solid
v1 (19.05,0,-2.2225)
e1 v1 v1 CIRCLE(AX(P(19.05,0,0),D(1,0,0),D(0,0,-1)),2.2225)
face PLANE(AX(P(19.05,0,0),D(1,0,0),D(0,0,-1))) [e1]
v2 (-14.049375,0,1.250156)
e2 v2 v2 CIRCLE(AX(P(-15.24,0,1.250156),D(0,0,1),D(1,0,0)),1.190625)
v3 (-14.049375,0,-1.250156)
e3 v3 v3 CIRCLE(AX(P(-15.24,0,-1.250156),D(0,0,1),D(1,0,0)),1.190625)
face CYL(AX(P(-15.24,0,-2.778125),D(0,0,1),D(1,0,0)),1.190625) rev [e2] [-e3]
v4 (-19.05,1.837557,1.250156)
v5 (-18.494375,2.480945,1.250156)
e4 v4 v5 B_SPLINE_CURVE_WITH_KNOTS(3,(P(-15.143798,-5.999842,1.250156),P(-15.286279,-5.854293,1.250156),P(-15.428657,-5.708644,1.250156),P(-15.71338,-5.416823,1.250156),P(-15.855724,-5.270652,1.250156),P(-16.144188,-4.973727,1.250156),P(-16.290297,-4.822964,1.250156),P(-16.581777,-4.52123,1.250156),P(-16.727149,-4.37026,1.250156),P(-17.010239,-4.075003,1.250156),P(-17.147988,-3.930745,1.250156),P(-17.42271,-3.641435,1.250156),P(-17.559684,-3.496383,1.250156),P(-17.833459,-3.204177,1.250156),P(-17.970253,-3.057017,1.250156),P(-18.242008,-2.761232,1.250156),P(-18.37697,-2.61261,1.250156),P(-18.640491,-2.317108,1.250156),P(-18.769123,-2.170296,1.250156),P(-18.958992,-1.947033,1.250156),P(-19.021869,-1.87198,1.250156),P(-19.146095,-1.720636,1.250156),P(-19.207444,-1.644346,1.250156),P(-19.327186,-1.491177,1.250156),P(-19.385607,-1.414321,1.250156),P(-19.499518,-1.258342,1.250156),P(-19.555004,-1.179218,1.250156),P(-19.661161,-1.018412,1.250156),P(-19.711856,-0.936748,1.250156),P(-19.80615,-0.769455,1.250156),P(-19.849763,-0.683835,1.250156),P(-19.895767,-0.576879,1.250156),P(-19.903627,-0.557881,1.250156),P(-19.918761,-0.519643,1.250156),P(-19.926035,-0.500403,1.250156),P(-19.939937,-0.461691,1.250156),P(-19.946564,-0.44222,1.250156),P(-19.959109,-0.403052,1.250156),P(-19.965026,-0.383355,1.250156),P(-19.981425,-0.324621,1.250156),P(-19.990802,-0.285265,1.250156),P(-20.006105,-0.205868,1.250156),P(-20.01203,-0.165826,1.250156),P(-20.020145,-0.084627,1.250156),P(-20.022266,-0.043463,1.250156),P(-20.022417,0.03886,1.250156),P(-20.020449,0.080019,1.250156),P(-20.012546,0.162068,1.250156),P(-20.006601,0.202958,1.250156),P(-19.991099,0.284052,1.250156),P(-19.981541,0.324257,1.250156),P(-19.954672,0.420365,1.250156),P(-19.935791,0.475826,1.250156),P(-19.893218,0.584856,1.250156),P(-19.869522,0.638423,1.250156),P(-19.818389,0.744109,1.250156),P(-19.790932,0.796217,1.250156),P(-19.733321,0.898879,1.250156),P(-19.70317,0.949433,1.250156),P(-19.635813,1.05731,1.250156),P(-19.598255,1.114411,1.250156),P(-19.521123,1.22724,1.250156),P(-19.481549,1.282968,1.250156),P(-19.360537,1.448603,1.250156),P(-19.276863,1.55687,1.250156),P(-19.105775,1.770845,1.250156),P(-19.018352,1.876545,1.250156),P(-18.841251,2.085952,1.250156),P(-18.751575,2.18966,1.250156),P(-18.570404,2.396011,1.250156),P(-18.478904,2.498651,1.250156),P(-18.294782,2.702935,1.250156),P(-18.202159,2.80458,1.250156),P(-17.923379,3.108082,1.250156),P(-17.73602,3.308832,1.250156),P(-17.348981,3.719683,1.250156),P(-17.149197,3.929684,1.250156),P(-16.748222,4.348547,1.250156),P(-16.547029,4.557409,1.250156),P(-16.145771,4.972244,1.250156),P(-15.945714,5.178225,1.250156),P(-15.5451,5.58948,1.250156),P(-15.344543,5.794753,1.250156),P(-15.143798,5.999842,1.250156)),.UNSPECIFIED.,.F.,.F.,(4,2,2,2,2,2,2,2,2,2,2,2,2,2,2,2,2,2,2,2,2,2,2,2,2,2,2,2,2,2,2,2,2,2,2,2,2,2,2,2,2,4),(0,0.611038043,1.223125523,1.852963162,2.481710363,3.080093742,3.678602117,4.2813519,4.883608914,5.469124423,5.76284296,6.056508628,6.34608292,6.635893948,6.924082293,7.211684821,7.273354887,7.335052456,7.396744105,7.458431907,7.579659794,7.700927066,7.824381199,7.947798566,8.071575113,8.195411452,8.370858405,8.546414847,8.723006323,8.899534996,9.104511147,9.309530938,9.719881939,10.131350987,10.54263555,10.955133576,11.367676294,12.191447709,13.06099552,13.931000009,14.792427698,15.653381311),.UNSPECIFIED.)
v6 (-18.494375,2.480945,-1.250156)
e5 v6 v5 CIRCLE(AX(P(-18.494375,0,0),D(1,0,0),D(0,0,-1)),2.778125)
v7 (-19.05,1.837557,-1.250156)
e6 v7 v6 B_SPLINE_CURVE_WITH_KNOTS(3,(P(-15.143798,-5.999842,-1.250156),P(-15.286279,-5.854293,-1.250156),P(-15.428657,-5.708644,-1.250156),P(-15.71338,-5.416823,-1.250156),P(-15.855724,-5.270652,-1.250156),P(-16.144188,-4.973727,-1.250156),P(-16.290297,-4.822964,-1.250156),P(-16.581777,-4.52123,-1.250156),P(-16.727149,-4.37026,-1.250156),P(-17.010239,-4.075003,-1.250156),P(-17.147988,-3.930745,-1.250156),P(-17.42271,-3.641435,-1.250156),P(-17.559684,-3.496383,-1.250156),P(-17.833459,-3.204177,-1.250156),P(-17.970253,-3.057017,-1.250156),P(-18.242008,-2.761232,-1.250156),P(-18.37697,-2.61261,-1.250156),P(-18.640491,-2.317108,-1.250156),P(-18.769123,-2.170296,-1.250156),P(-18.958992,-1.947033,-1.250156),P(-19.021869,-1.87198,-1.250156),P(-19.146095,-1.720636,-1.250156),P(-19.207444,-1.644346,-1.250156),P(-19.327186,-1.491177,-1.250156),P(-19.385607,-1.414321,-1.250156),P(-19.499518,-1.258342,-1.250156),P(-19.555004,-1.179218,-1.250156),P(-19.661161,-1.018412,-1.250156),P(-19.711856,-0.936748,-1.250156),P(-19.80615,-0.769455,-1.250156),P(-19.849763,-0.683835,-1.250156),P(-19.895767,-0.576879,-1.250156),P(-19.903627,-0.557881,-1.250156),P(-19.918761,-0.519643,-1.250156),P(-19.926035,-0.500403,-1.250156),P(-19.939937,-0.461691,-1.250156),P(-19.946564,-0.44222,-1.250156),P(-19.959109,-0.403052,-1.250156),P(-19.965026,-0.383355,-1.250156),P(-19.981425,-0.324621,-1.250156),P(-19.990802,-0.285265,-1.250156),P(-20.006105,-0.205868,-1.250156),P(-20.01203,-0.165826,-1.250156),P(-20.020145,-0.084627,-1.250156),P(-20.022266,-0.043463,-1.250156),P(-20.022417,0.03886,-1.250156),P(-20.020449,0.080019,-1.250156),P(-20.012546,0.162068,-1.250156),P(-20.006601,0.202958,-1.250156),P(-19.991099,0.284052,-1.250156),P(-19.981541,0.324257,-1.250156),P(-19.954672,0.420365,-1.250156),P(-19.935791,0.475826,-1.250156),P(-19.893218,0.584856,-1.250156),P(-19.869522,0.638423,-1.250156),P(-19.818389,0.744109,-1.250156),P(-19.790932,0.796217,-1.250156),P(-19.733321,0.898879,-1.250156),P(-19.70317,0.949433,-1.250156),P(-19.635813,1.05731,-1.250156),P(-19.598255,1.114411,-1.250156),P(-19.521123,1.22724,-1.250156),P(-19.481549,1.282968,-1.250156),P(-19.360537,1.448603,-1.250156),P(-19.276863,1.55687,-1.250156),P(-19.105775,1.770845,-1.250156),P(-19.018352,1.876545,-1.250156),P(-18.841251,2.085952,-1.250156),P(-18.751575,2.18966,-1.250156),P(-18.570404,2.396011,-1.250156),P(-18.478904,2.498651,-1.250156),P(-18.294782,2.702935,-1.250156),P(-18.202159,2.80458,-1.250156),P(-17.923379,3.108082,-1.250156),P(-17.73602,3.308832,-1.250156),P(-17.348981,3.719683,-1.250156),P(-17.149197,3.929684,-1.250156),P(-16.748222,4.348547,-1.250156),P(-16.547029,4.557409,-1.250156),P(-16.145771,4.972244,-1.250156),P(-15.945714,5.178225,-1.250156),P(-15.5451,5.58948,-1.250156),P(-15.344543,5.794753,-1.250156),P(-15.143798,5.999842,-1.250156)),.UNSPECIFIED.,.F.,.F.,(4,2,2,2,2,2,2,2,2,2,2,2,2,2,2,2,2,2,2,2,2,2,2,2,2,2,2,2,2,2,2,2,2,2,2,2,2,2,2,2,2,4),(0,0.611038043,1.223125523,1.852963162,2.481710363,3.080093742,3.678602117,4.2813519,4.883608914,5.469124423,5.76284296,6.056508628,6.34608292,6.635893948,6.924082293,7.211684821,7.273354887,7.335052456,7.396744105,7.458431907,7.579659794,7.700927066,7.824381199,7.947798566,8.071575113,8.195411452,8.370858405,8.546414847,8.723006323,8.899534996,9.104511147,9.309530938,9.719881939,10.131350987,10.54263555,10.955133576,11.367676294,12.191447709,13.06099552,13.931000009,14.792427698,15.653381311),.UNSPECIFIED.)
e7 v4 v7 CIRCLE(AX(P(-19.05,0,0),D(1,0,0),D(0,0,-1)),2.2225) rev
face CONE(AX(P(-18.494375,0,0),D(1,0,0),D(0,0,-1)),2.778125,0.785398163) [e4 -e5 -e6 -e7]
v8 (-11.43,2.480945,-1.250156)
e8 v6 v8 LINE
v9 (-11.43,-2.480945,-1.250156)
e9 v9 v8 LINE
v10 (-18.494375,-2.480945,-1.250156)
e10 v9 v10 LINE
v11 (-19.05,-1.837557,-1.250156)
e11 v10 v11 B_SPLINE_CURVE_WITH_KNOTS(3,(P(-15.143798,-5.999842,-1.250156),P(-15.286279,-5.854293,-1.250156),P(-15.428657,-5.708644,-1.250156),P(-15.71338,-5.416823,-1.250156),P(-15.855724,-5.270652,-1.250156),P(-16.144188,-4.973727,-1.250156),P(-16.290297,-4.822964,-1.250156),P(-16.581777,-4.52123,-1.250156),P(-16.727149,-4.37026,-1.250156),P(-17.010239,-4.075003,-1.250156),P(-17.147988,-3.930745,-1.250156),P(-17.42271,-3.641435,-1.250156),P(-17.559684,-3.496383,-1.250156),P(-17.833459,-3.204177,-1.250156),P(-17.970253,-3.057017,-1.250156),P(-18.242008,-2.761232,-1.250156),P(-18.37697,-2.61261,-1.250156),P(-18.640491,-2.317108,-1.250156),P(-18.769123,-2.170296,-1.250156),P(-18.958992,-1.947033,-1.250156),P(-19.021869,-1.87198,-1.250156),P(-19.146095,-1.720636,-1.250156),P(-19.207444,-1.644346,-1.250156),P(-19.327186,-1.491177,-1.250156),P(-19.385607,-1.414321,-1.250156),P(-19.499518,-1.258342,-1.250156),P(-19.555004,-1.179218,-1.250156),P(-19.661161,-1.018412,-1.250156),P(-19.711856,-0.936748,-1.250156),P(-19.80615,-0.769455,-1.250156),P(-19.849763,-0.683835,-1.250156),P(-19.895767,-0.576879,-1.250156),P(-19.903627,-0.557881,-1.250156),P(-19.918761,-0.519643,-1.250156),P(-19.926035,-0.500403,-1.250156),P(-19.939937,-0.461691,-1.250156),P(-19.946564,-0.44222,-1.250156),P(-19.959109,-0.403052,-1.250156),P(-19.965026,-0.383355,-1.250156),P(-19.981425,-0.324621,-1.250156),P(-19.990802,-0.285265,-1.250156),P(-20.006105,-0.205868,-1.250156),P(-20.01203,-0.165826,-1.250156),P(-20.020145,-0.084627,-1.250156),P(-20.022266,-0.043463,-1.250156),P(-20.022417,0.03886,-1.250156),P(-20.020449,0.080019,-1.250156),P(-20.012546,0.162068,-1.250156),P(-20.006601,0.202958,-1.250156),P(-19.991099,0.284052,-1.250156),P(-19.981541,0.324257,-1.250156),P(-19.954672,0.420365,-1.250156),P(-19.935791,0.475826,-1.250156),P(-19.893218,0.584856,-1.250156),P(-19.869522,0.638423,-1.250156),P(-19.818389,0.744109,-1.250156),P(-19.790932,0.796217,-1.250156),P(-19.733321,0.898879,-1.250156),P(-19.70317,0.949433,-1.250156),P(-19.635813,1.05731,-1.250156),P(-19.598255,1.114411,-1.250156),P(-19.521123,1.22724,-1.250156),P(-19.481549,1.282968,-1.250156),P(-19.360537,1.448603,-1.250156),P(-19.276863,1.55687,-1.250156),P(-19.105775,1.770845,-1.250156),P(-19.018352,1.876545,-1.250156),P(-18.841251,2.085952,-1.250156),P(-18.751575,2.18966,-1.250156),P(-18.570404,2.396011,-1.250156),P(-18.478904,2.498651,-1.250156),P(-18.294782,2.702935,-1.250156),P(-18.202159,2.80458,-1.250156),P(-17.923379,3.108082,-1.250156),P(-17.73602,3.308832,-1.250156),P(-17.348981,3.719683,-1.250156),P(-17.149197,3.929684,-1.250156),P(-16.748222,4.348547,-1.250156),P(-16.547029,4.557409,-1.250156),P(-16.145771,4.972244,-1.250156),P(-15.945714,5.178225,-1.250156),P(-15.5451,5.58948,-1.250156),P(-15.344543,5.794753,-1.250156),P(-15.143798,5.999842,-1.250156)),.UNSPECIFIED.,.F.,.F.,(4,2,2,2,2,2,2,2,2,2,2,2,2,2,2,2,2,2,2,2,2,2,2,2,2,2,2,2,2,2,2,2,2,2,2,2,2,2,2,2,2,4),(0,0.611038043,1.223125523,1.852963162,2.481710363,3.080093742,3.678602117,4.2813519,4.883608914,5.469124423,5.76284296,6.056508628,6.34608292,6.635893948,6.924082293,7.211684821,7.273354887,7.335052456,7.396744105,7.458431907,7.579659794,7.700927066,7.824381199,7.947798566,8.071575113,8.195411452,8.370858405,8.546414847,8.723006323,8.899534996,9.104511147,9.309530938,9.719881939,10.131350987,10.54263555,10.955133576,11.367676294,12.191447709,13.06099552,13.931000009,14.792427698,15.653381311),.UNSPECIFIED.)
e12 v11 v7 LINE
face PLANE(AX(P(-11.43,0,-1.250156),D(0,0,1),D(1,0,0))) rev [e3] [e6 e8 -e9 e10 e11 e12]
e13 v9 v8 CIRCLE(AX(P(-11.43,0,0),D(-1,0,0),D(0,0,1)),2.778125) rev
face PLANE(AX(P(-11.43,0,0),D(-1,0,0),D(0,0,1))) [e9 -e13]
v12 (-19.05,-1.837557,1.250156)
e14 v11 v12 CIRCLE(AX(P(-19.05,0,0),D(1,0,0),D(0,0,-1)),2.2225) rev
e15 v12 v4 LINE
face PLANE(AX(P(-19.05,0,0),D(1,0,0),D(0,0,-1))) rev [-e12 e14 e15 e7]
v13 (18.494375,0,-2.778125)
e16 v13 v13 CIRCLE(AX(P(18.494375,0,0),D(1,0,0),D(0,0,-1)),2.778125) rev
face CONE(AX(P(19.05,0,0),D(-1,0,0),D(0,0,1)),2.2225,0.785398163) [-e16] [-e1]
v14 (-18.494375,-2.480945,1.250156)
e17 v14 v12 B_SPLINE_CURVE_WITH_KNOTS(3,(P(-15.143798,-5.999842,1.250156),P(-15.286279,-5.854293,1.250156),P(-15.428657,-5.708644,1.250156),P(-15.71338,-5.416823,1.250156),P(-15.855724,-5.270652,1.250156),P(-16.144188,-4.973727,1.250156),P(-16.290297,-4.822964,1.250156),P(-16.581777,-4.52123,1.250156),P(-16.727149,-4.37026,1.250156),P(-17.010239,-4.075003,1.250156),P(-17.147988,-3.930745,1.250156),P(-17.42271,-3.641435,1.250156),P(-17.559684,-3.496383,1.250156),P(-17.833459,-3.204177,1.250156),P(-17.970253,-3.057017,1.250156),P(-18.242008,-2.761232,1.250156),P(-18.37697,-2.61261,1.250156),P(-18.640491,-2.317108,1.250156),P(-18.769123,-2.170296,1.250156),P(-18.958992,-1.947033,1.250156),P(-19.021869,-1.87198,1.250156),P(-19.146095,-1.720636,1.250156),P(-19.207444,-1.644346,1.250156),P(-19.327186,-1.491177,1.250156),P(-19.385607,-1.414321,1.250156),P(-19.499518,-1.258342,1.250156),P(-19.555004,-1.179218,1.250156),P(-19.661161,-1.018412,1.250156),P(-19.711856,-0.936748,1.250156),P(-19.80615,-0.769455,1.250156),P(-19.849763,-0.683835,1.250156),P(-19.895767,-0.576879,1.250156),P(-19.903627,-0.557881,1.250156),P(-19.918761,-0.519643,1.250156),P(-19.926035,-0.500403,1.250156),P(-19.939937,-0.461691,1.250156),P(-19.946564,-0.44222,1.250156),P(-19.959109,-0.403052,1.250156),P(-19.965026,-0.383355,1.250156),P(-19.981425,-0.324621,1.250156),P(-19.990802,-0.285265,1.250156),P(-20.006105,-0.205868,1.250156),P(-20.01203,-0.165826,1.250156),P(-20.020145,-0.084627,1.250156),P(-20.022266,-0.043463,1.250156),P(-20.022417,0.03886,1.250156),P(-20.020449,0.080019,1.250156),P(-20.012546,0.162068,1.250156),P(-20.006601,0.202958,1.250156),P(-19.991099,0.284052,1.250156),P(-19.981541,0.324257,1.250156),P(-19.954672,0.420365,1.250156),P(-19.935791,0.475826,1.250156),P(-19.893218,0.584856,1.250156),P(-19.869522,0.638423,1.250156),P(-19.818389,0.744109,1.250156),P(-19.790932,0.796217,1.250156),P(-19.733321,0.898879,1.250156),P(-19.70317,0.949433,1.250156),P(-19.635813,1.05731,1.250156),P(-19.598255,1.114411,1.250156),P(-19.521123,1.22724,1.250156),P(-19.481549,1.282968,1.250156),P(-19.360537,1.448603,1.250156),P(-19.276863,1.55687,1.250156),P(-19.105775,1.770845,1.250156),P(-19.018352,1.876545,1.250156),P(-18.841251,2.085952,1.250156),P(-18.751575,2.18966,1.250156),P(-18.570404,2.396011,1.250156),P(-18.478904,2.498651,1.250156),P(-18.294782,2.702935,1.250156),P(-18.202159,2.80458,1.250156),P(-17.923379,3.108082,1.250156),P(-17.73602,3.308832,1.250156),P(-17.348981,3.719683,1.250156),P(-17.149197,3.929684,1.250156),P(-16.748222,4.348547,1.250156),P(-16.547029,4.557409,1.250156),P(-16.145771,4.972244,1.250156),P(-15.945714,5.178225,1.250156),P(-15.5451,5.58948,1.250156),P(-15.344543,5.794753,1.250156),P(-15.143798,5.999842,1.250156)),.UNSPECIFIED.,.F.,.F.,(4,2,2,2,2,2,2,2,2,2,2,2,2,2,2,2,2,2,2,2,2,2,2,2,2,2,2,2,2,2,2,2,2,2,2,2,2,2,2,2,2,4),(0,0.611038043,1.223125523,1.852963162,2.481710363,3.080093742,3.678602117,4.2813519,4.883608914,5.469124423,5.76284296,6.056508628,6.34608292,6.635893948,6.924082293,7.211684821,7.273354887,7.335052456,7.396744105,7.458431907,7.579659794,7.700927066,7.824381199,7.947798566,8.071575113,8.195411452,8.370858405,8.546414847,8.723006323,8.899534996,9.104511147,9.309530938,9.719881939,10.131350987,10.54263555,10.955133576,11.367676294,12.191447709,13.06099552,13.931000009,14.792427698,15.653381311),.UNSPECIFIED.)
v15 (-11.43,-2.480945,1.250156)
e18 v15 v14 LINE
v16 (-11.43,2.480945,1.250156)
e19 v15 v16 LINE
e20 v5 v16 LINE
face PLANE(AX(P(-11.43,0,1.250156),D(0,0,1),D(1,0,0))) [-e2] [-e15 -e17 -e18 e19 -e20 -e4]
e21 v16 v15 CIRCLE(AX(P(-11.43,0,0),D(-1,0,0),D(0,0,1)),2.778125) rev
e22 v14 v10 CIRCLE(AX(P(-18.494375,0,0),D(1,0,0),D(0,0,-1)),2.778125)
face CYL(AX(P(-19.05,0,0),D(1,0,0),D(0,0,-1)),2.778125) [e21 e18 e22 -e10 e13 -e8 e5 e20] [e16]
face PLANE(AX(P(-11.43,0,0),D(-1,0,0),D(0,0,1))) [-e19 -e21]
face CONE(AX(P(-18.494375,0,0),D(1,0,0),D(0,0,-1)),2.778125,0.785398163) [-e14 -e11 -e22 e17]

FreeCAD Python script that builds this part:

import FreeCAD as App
import Part
import Sketcher
Q = App.Units.Quantity


def edges_at(feature, points):
    """Names of the edges that pass closest to the given points."""
    edges = feature.Shape.Edges
    near = lambda p: min(range(len(edges)), key=lambda i: edges[i].distToShape(Part.Vertex(*p))[0])
    return sorted({f"Edge{near(p) + 1}" for p in points})


def add_polygon(sketch, points):
    """Adds a closed chain of lines whose ends are joined by coincident constraints."""
    first, n = sketch.GeometryCount, len(points)
    for a, b in zip(points, points[1:] + points[:1]):
        sketch.addGeometry(Part.LineSegment(App.Vector(*a, 0), App.Vector(*b, 0)), False)
    for i in range(n):
        sketch.addConstraint(Sketcher.Constraint("Coincident", first + i, 2, first + (i + 1) % n, 1))

doc = App.newDocument("Part")
body = doc.addObject("PartDesign::Body", "Body")

# Sketch on YZ plane
sketch1 = body.newObject("Sketcher::SketchObject", "Sketch")
sketch1.AttachmentSupport = (doc.getObject("YZ_Plane"), [""])
sketch1.MapMode = "FlatFace"
sketch1.addGeometry(Part.Circle(App.Vector(0, 0, 0), App.Vector(0, 0, 1), 2.778125), False)
sketch1.addConstraint(Sketcher.Constraint("Coincident", 0, 3, -1, 1))
sketch1.addConstraint(Sketcher.Constraint("Diameter", 0, Q("0.21875 in")))
pad1 = body.newObject("PartDesign::Pad", "Pad")
pad1.Profile = sketch1
pad1.Type = "TwoLengths"
pad1.Length = Q("0.75 in")
pad1.Length2 = Q("0.75 in")
doc.recompute()

chamfer = body.newObject("PartDesign::Chamfer", "Chamfer")
chamfer.Base = (pad1, edges_at(pad1, [(-19.05, 0, 2.778), (19.05, 0, 2.778)]))
chamfer.Size = 0.555625

# Sketch on YZ plane
sketch2 = body.newObject("Sketcher::SketchObject", "Sketch001")
sketch2.AttachmentSupport = (doc.getObject("YZ_Plane"), [""])
sketch2.MapMode = "FlatFace"
sketch2.AttachmentOffset = App.Placement(App.Vector(0, 0, -0.75 * 25.4), App.Rotation())
add_polygon(sketch2, [(3.175, -3.175), (-3.175, -3.175), (-3.175, -1.250156), (3.175, -1.250156)])  # lines 0-3
add_polygon(sketch2, [(-3.175, 1.250156), (-3.175, 3.175), (3.175, 3.175), (3.175, 1.250156)])  # lines 4-7
sketch2.addConstraint(Sketcher.Constraint("Horizontal", 0))
sketch2.addConstraint(Sketcher.Constraint("Vertical", 1))
sketch2.addConstraint(Sketcher.Constraint("Horizontal", 2))
sketch2.addConstraint(Sketcher.Constraint("Vertical", 3))
sketch2.addConstraint(Sketcher.Constraint("Vertical", 4))
sketch2.addConstraint(Sketcher.Constraint("Horizontal", 5))
sketch2.addConstraint(Sketcher.Constraint("Vertical", 6))
sketch2.addConstraint(Sketcher.Constraint("Horizontal", 7))
sketch2.addConstraint(Sketcher.Constraint("Symmetric", 3, 2, 4, 2, -1, 1))
sketch2.addConstraint(Sketcher.Constraint("Symmetric", 1, 2, 6, 2, -1, 1))
sketch2.addConstraint(Sketcher.Constraint("Vertical", 1, 2, 4, 2))
sketch2.addConstraint(Sketcher.Constraint("DistanceX", 0, 2, 0, 1, Q("0.25 in")))
sketch2.addConstraint(Sketcher.Constraint("DistanceY", 0, 2, 4, 2, Q("0.25 in")))
sketch2.addConstraint(Sketcher.Constraint("DistanceY", 1, 1, 1, 2, Q("1.924844 mm")))
pocket1 = body.newObject("PartDesign::Pocket", "Pocket")
pocket1.Profile = sketch2
pocket1.Length = Q("0.3 in")
pocket1.Reversed = True

# Sketch on XY plane
sketch3 = body.newObject("Sketcher::SketchObject", "Sketch002")
sketch3.AttachmentSupport = (doc.getObject("XY_Plane"), [""])
sketch3.MapMode = "FlatFace"
sketch3.AttachmentOffset = App.Placement(App.Vector(0, 0, 1.250156), App.Rotation())
sketch3.addGeometry(Part.Circle(App.Vector(-15.24, 0, 0), App.Vector(0, 0, 1), 1.190625), False)
sketch3.addConstraint(Sketcher.Constraint("PointOnObject", 0, 3, -1))
sketch3.addConstraint(Sketcher.Constraint("Diameter", 0, Q("0.09375 in")))
sketch3.addConstraint(Sketcher.Constraint("DistanceX", 0, 3, -1, 1, Q("0.6 in")))
pocket2 = body.newObject("PartDesign::Pocket", "Pocket001")
pocket2.Profile = sketch3
pocket2.Type = "ThroughAll"

doc.recompute()
